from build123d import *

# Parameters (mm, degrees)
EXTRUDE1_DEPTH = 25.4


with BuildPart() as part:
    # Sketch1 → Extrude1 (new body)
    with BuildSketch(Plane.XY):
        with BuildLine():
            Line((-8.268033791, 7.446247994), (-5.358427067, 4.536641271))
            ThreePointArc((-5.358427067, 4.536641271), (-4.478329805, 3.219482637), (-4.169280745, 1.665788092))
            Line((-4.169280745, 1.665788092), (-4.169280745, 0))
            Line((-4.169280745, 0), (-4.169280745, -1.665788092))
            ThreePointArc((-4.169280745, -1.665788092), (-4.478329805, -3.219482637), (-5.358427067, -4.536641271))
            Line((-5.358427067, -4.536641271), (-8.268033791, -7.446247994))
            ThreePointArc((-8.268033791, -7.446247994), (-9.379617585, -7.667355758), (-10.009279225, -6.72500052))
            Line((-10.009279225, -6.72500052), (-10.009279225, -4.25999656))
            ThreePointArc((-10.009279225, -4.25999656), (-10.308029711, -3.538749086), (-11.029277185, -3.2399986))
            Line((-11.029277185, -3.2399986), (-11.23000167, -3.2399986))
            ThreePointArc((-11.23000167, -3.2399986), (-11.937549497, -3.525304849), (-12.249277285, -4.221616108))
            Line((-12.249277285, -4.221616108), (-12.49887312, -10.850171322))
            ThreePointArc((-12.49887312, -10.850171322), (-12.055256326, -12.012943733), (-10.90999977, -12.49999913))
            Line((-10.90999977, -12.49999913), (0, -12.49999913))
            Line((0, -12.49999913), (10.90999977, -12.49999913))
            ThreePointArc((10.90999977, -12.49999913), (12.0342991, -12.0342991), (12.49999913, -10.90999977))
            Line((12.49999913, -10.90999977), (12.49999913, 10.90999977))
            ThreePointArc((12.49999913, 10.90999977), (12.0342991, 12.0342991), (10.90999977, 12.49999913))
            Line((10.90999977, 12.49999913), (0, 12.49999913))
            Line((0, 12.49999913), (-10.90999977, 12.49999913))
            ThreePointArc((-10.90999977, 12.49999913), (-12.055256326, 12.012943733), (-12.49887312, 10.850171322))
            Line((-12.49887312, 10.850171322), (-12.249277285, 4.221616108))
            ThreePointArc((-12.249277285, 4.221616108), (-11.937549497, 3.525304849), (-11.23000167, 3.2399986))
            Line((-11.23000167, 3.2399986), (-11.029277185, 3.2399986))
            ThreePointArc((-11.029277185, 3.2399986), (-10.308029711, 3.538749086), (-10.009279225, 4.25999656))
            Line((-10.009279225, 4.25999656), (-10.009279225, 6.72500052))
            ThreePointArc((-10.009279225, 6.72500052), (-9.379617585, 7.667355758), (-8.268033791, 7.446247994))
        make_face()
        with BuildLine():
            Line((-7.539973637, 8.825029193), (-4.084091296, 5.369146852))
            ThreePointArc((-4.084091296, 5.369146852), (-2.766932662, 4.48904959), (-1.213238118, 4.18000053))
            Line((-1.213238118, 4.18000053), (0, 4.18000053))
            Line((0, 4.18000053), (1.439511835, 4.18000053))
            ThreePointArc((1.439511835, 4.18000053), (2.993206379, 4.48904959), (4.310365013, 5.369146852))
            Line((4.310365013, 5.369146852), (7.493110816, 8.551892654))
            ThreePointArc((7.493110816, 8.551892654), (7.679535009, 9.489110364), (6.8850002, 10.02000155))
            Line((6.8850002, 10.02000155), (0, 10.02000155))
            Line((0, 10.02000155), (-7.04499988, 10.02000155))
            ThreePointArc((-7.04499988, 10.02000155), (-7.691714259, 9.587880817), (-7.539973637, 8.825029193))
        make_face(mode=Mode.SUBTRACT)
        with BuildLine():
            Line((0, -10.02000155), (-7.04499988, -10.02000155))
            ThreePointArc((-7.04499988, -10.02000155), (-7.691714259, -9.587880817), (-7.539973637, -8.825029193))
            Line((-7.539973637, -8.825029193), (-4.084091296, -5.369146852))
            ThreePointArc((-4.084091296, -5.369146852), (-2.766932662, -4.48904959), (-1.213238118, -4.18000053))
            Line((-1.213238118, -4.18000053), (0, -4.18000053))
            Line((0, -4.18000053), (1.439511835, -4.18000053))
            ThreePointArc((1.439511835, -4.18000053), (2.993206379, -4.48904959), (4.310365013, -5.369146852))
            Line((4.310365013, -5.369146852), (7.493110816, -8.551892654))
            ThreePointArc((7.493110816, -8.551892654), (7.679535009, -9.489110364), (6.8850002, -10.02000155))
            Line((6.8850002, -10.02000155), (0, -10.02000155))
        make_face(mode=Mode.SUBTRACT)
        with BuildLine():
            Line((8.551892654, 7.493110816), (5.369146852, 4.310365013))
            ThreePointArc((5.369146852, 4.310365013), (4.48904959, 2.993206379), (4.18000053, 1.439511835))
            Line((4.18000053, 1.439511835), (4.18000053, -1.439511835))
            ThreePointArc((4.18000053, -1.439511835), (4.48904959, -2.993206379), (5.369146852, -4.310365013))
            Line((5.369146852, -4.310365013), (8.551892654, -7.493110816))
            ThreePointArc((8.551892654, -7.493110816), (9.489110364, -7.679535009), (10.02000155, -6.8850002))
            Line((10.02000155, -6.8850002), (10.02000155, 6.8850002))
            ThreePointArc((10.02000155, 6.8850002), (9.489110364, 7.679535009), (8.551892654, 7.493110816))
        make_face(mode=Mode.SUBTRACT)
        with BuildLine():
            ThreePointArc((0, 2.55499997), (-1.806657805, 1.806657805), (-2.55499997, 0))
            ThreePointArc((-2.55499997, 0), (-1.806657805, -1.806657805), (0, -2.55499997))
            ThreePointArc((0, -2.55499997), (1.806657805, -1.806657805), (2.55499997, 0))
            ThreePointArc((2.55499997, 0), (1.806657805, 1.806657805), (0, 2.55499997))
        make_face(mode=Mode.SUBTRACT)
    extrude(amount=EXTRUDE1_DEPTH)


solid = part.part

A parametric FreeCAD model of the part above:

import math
import FreeCAD as App
import Part
import Sketcher

V = App.Vector
Q = App.Units.Quantity

doc = App.newDocument("Part")
body = doc.addObject("PartDesign::Body", "Body")

# Sketch on XY plane
sketch1 = body.newObject("Sketcher::SketchObject", "Sketch")
sketch1.AttachmentSupport = (doc.getObject("XY_Plane"), [""])
sketch1.MapMode = "FlatFace"
sketch1.addGeometry([
    Part.LineSegment(V(-8.268034, 7.446248, 0), V(-5.358427, 4.536641, 0)),  # 0
    Part.ArcOfCircle(Part.Circle(V(-8.22928, 1.665788, 0), V(0, 0, 1), 4.059999), math.radians(0), math.radians(45)),  # 1
    Part.LineSegment(V(-4.169281, 1.665788, 0), V(-4.169281, -1.665788, 0)),  # 2
    Part.ArcOfCircle(Part.Circle(V(-8.22928, -1.665788, 0), V(0, 0, 1), 4.059999), math.radians(-45), math.radians(0)),  # 3
    Part.LineSegment(V(-5.358427, -4.536641, 0), V(-8.268034, -7.446248, 0)),  # 4
    Part.ArcOfCircle(Part.Circle(V(-8.989281, -6.725001, 0), V(0, 0, 1), 1.019998), math.radians(-180), math.radians(-45)),  # 5
    Part.LineSegment(V(-10.009279, -6.725001, 0), V(-10.009279, -4.259997, 0)),  # 6
    Part.ArcOfCircle(Part.Circle(V(-11.029277, -4.259997, 0), V(0, 0, 1), 1.019998), math.radians(0), math.radians(90)),  # 7
    Part.LineSegment(V(-11.029277, -3.239999, 0), V(-11.230002, -3.239999, 0)),  # 8
    Part.ArcOfCircle(Part.Circle(V(-11.230002, -4.259997, 0), V(0, 0, 1), 1.019998), math.radians(90), math.radians(177.843567)),  # 9
    Part.LineSegment(V(-12.249277, -4.221616, 0), V(-12.498873, -10.850171, 0)),  # 10
    Part.ArcOfCircle(Part.Circle(V(-10.91, -10.91, 0), V(0, 0, 1), 1.589999), math.radians(177.843567), math.radians(270)),  # 11
    Part.LineSegment(V(-10.91, -12.499999, 0), V(10.91, -12.499999, 0)),  # 12
    Part.ArcOfCircle(Part.Circle(V(10.91, -10.91, 0), V(0, 0, 1), 1.589999), math.radians(-90), math.radians(0)),  # 13
    Part.LineSegment(V(12.499999, -10.91, 0), V(12.499999, 10.91, 0)),  # 14
    Part.ArcOfCircle(Part.Circle(V(10.91, 10.91, 0), V(0, 0, 1), 1.589999), math.radians(0), math.radians(90)),  # 15
    Part.LineSegment(V(10.91, 12.499999, 0), V(-10.91, 12.499999, 0)),  # 16
    Part.ArcOfCircle(Part.Circle(V(-10.91, 10.91, 0), V(0, 0, 1), 1.589999), math.radians(90), math.radians(182.156433)),  # 17
    Part.LineSegment(V(-12.498873, 10.850171, 0), V(-12.249277, 4.221616, 0)),  # 18
    Part.ArcOfCircle(Part.Circle(V(-11.230002, 4.259997, 0), V(0, 0, 1), 1.019998), math.radians(-177.843567), math.radians(-90)),  # 19
    Part.LineSegment(V(-11.230002, 3.239999, 0), V(-11.029277, 3.239999, 0)),  # 20
    Part.ArcOfCircle(Part.Circle(V(-11.029277, 4.259997, 0), V(0, 0, 1), 1.019998), math.radians(-90), math.radians(0)),  # 21
    Part.LineSegment(V(-10.009279, 4.259997, 0), V(-10.009279, 6.725001, 0)),  # 22
    Part.ArcOfCircle(Part.Circle(V(-8.989281, 6.725001, 0), V(0, 0, 1), 1.019998), math.radians(45), math.radians(180)),  # 23
    Part.LineSegment(V(6.885, -10.020002, 0), V(-7.045, -10.020002, 0)),  # 24
    Part.ArcOfCircle(Part.Circle(V(-7.045, -9.320003, 0), V(0, 0, 1), 0.699999), math.radians(135), math.radians(270)),  # 25
    Part.LineSegment(V(-7.539974, -8.825029, 0), V(-4.084091, -5.369147, 0)),  # 26
    Part.ArcOfCircle(Part.Circle(V(-1.213238, -8.24, 0), V(0, 0, 1), 4.059999), math.radians(90), math.radians(135)),  # 27
    Part.LineSegment(V(-1.213238, -4.180001, 0), V(1.439512, -4.180001, 0)),  # 28
    Part.ArcOfCircle(Part.Circle(V(1.439512, -8.24, 0), V(0, 0, 1), 4.059999), math.radians(45), math.radians(90)),  # 29
    Part.LineSegment(V(4.310365, -5.369147, 0), V(7.493111, -8.551893, 0)),  # 30
    Part.ArcOfCircle(Part.Circle(V(6.885, -9.160003, 0), V(0, 0, 1), 0.859998), math.radians(-90), math.radians(45)),  # 31
    Part.ArcOfCircle(Part.Circle(V(0, 0, 0), V(0, 0, 1), 2.555), math.radians(90), math.radians(180)),  # 32
    Part.ArcOfCircle(Part.Circle(V(0, 0, 0), V(0, 0, 1), 2.555), math.radians(0), math.radians(90)),  # 33
    Part.ArcOfCircle(Part.Circle(V(0, 0, 0), V(0, 0, 1), 2.555), math.radians(-90), math.radians(0)),  # 34
    Part.ArcOfCircle(Part.Circle(V(0, 0, 0), V(0, 0, 1), 2.555), math.radians(180), math.radians(270)),  # 35
    Part.LineSegment(V(-4.084091, 5.369147, 0), V(-7.539974, 8.825029, 0)),  # 36
    Part.ArcOfCircle(Part.Circle(V(-7.045, 9.320003, 0), V(0, 0, 1), 0.699999), math.radians(90), math.radians(225)),  # 37
    Part.LineSegment(V(-7.045, 10.020002, 0), V(6.885, 10.020002, 0)),  # 38
    Part.ArcOfCircle(Part.Circle(V(6.885, 9.160003, 0), V(0, 0, 1), 0.859998), math.radians(-45), math.radians(90)),  # 39
    Part.LineSegment(V(7.493111, 8.551893, 0), V(4.310365, 5.369147, 0)),  # 40
    Part.ArcOfCircle(Part.Circle(V(1.439512, 8.24, 0), V(0, 0, 1), 4.059999), math.radians(-90), math.radians(-45)),  # 41
    Part.LineSegment(V(1.439512, 4.180001, 0), V(-1.213238, 4.180001, 0)),  # 42
    Part.ArcOfCircle(Part.Circle(V(-1.213238, 8.24, 0), V(0, 0, 1), 4.059999), math.radians(-135), math.radians(-90)),  # 43
    Part.LineSegment(V(5.369147, 4.310365, 0), V(8.551893, 7.493111, 0)),  # 44
    Part.ArcOfCircle(Part.Circle(V(9.160003, 6.885, 0), V(0, 0, 1), 0.859998), math.radians(0), math.radians(135)),  # 45
    Part.LineSegment(V(10.020002, 6.885, 0), V(10.020002, -6.885, 0)),  # 46
    Part.ArcOfCircle(Part.Circle(V(9.160003, -6.885, 0), V(0, 0, 1), 0.859998), math.radians(-135), math.radians(0)),  # 47
    Part.LineSegment(V(8.551893, -7.493111, 0), V(5.369147, -4.310365, 0)),  # 48
    Part.ArcOfCircle(Part.Circle(V(8.24, -1.439512, 0), V(0, 0, 1), 4.059999), math.radians(180), math.radians(225)),  # 49
    Part.LineSegment(V(4.180001, -1.439512, 0), V(4.180001, 1.439512, 0)),  # 50
    Part.ArcOfCircle(Part.Circle(V(8.24, 1.439512, 0), V(0, 0, 1), 4.059999), math.radians(135), math.radians(180)),  # 51
], False)
sketch1.addConstraint([
    Sketcher.Constraint("Tangent", 0, 2, 1, 2),
    Sketcher.Constraint("Tangent", 1, 1, 2, 1),
    Sketcher.Constraint("Tangent", 2, 2, 3, 2),
    Sketcher.Constraint("Tangent", 3, 1, 4, 1),
    Sketcher.Constraint("Tangent", 4, 2, 5, 2),
    Sketcher.Constraint("Tangent", 5, 1, 6, 1),
    Sketcher.Constraint("Tangent", 6, 2, 7, 1),
    Sketcher.Constraint("Tangent", 7, 2, 8, 1),
    Sketcher.Constraint("Tangent", 8, 2, 9, 1),
    Sketcher.Constraint("Tangent", 9, 2, 10, 1),
    Sketcher.Constraint("Tangent", 10, 2, 11, 1),
    Sketcher.Constraint("Tangent", 11, 2, 12, 1),
    Sketcher.Constraint("Tangent", 12, 2, 13, 1),
    Sketcher.Constraint("Tangent", 13, 2, 14, 1),
    Sketcher.Constraint("Tangent", 14, 2, 15, 1),
    Sketcher.Constraint("Tangent", 15, 2, 16, 1),
    Sketcher.Constraint("Tangent", 16, 2, 17, 1),
    Sketcher.Constraint("Tangent", 17, 2, 18, 1),
    Sketcher.Constraint("Tangent", 18, 2, 19, 1),
    Sketcher.Constraint("Tangent", 19, 2, 20, 1),
    Sketcher.Constraint("Tangent", 20, 2, 21, 1),
    Sketcher.Constraint("Tangent", 21, 2, 22, 1),
    Sketcher.Constraint("Tangent", 22, 2, 23, 2),
    Sketcher.Constraint("Tangent", 23, 1, 0, 1),
    Sketcher.Constraint("Tangent", 24, 2, 25, 2),
    Sketcher.Constraint("Tangent", 25, 1, 26, 1),
    Sketcher.Constraint("Tangent", 26, 2, 27, 2),
    Sketcher.Constraint("Tangent", 27, 1, 28, 1),
    Sketcher.Constraint("Tangent", 28, 2, 29, 2),
    Sketcher.Constraint("Tangent", 29, 1, 30, 1),
    Sketcher.Constraint("Tangent", 30, 2, 31, 2),
    Sketcher.Constraint("Tangent", 31, 1, 24, 1),
    Sketcher.Constraint("Tangent", 32, 1, 33, 2),
    Sketcher.Constraint("Tangent", 33, 1, 34, 2),
    Sketcher.Constraint("Tangent", 34, 1, 35, 2),
    Sketcher.Constraint("Tangent", 35, 1, 32, 2),
    Sketcher.Constraint("Tangent", 36, 2, 37, 2),
    Sketcher.Constraint("Tangent", 37, 1, 38, 1),
    Sketcher.Constraint("Tangent", 38, 2, 39, 2),
    Sketcher.Constraint("Tangent", 39, 1, 40, 1),
    Sketcher.Constraint("Tangent", 40, 2, 41, 2),
    Sketcher.Constraint("Tangent", 41, 1, 42, 1),
    Sketcher.Constraint("Tangent", 42, 2, 43, 2),
    Sketcher.Constraint("Tangent", 43, 1, 36, 1),
    Sketcher.Constraint("Tangent", 44, 2, 45, 2),
    Sketcher.Constraint("Tangent", 45, 1, 46, 1),
    Sketcher.Constraint("Tangent", 46, 2, 47, 2),
    Sketcher.Constraint("Tangent", 47, 1, 48, 1),
    Sketcher.Constraint("Tangent", 48, 2, 49, 2),
    Sketcher.Constraint("Tangent", 49, 1, 50, 1),
    Sketcher.Constraint("Tangent", 50, 2, 51, 2),
    Sketcher.Constraint("Tangent", 51, 1, 44, 1),
    Sketcher.Constraint("Vertical", 2),
    Sketcher.Constraint("Vertical", 6),
    Sketcher.Constraint("Horizontal", 8),
    Sketcher.Constraint("Horizontal", 12),
    Sketcher.Constraint("Vertical", 14),
    Sketcher.Constraint("Horizontal", 16),
    Sketcher.Constraint("Horizontal", 20),
    Sketcher.Constraint("Vertical", 22),
    Sketcher.Constraint("Horizontal", 24),
    Sketcher.Constraint("Horizontal", 28),
    Sketcher.Constraint("Horizontal", 38),
    Sketcher.Constraint("Horizontal", 42),
    Sketcher.Constraint("Vertical", 46),
    Sketcher.Constraint("Vertical", 50),
    Sketcher.Constraint("Coincident", 32, 3, -1, 1),
    Sketcher.Constraint("Equal", 1, 3),
    Sketcher.Constraint("Equal", 5, 7),
    Sketcher.Constraint("Equal", 7, 9),
    Sketcher.Constraint("Equal", 11, 13),
    Sketcher.Constraint("Equal", 13, 15),
    Sketcher.Constraint("Equal", 15, 17),
    Sketcher.Constraint("Equal", 9, 19),
    Sketcher.Constraint("Equal", 19, 21),
    Sketcher.Constraint("Equal", 21, 23),
    Sketcher.Constraint("Equal", 3, 27),
    Sketcher.Constraint("Equal", 27, 29),
    Sketcher.Constraint("Equal", 32, 33),
    Sketcher.Constraint("Equal", 25, 37),
    Sketcher.Constraint("Equal", 31, 39),
    Sketcher.Constraint("Equal", 29, 41),
    Sketcher.Constraint("Equal", 41, 43),
    Sketcher.Constraint("Equal", 39, 45),
    Sketcher.Constraint("Equal", 45, 47),
    Sketcher.Constraint("Equal", 43, 49),
    Sketcher.Constraint("Equal", 49, 51),
    Sketcher.Constraint("Symmetric", 11, 3, 15, 3, -1, 1),
    Sketcher.Constraint("Symmetric", 9, 3, 19, 3, -1),
    Sketcher.Constraint("Symmetric", 5, 3, 23, 3, -1),
    Sketcher.Constraint("Symmetric", 25, 3, 37, 3, -1),
    Sketcher.Constraint("Symmetric", 29, 3, 41, 3, -1),
    Sketcher.Constraint("Symmetric", 44, 2, 47, 1, -1),
    Sketcher.Constraint("PointOnObject", 32, 1, -2),
    Sketcher.Constraint("PointOnObject", 33, 1, -1),
    Sketcher.Constraint("PointOnObject", 34, 1, -2),
    Sketcher.Constraint("PointOnObject", 35, 1, -1),
    Sketcher.Constraint("Perpendicular", 0, 4),
    Sketcher.Constraint("Parallel", 4, 26),
    Sketcher.Constraint("Perpendicular", 26, 30),
    Sketcher.Constraint("Parallel", 30, 36),
    Sketcher.Constraint("Perpendicular", 36, 40),
    Sketcher.Constraint("Parallel", 40, 44),
    Sketcher.Constraint("Perpendicular", 44, 48),
    Sketcher.Constraint("Vertical", 11, 3, 17, 3),
    Sketcher.Constraint("Equal", 16, 14),
    Sketcher.Constraint("Equal", 40, 44),
    Sketcher.Constraint("Radius", 1, 4.059999),
    Sketcher.Constraint("Radius", 11, 1.589999),
    Sketcher.Constraint("Radius", 25, 0.699999),
    Sketcher.Constraint("Radius", 31, 0.859998),
    Sketcher.Constraint("Radius", 32, 2.555),
    Sketcher.Constraint("DistanceX", 12, 1, 12, 2, 21.82),
    Sketcher.Constraint("DistanceX", 24, 2, 24, 1, 13.93),
    Sketcher.Constraint("DistanceY", 46, 2, 46, 1, 13.77),
    Sketcher.Constraint("Radius", 5, 1.019998),
    Sketcher.Constraint("DistanceX", 28, 1, 28, 2, 2.65275),
    Sketcher.Constraint("DistanceY", 5, 3, -1, 1, 6.725001),
    Sketcher.Constraint("DistanceX", 9, 3, -1, 1, 11.230002),
    Sketcher.Constraint("DistanceX", 25, 3, -1, 1, 7.045),
    Sketcher.Constraint("DistanceY", 27, 3, -1, 1, 8.24),
    Sketcher.Constraint("DistanceX", -1, 1, 49, 3, 8.24),
    Sketcher.Constraint("DistanceY", 7, 2, -1, 1, 3.239999),
    Sketcher.Constraint("DistanceX", 8, 2, 8, 1, 0.200724),
    Sketcher.Constraint("DistanceY", 2, 2, 2, 1, 3.331576),
])
pad1 = body.newObject("PartDesign::Pad", "Pad")
pad1.Profile = sketch1
pad1.Length = Q("1 in")

doc.recompute()
